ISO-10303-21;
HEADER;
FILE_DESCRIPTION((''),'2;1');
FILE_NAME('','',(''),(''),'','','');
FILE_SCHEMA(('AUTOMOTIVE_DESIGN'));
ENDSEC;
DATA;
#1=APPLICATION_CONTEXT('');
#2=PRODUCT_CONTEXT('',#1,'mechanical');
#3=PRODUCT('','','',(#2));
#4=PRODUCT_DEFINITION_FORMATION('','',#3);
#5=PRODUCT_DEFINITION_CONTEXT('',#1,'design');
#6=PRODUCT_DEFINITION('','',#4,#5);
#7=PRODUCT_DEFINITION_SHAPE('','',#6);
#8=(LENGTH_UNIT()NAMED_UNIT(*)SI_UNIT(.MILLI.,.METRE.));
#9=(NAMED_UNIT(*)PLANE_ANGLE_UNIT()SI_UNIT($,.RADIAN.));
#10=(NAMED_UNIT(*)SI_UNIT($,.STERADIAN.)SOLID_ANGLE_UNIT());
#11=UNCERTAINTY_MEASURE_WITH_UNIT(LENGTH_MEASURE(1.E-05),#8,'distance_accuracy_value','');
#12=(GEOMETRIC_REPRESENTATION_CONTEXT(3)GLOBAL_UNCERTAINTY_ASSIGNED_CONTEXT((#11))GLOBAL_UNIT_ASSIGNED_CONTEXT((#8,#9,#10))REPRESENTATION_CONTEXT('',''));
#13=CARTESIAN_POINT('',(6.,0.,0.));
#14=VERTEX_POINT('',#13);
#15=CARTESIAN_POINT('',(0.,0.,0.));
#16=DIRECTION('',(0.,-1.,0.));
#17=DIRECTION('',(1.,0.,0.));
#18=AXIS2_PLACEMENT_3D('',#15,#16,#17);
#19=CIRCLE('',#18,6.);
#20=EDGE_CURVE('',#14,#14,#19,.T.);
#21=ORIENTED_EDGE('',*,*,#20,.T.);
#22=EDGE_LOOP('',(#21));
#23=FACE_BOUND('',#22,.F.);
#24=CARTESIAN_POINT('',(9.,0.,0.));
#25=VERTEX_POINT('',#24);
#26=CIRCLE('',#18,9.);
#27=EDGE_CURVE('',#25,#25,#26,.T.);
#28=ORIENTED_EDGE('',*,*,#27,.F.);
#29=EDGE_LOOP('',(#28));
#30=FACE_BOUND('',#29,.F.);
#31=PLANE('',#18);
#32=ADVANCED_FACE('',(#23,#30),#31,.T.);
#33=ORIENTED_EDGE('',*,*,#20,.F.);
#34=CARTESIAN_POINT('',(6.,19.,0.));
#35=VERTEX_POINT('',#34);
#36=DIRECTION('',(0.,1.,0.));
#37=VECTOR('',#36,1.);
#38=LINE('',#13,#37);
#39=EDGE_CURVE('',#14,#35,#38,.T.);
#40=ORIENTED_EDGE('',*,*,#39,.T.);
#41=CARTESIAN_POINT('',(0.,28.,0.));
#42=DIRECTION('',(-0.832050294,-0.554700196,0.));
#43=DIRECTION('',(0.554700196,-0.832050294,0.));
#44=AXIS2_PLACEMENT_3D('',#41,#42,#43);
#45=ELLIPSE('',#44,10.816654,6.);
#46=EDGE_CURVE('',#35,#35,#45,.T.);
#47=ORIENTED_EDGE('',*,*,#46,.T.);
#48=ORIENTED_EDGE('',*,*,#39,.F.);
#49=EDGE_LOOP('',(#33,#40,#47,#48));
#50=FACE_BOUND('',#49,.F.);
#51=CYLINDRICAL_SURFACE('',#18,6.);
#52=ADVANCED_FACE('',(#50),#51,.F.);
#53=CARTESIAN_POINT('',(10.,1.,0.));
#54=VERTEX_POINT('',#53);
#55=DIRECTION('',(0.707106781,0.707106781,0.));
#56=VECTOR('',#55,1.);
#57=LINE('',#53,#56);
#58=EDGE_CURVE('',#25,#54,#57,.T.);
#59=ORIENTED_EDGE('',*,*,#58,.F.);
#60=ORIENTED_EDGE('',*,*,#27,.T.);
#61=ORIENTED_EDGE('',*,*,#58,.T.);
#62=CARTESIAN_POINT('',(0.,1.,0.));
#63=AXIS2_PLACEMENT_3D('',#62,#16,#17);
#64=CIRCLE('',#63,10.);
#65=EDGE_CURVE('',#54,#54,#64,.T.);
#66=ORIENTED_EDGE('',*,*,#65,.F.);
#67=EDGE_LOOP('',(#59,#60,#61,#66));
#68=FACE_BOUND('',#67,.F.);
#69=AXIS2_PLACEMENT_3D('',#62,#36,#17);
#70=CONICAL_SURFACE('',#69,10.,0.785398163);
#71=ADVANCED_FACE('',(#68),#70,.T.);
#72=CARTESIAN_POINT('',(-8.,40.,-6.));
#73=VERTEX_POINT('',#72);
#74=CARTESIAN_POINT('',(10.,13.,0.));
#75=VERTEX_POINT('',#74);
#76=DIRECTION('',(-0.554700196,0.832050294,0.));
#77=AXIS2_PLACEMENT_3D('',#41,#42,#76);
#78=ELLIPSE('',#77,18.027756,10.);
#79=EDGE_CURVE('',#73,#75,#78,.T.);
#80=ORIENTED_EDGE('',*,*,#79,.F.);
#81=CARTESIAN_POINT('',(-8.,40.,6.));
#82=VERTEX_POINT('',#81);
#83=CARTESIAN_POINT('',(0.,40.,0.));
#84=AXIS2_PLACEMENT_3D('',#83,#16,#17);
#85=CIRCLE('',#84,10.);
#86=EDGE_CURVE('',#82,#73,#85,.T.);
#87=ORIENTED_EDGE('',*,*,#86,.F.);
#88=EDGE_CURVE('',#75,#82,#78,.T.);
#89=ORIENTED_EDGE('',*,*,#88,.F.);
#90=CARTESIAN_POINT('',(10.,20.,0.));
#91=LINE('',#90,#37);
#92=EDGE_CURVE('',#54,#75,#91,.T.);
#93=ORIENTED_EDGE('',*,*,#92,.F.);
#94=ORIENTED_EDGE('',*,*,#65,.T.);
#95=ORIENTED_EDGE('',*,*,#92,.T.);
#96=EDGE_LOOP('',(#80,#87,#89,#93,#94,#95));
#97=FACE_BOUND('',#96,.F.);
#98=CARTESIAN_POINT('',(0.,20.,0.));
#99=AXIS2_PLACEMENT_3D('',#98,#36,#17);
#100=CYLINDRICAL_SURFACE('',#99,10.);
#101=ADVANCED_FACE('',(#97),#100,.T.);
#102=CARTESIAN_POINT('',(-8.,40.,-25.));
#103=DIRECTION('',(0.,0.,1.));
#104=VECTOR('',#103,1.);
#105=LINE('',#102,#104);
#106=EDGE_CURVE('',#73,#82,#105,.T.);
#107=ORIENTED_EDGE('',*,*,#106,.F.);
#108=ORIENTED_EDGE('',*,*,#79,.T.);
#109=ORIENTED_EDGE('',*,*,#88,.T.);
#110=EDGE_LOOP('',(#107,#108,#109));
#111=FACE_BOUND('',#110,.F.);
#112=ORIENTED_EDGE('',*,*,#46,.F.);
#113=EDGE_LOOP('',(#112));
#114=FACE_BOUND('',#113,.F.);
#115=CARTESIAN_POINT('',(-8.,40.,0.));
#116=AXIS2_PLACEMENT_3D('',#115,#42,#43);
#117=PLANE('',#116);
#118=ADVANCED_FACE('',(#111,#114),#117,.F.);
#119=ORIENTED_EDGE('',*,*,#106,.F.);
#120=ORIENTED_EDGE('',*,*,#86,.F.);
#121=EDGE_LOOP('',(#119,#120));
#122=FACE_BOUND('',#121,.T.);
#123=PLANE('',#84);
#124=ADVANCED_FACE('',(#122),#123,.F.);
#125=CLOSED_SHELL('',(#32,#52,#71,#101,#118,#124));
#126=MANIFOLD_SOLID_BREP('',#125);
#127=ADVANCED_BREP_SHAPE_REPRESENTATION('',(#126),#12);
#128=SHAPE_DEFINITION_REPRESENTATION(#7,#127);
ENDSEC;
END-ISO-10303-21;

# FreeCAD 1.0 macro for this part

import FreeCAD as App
import Part
import Sketcher

V = App.Vector
Q = App.Units.Quantity


def edges_at(feature, points):
    """Names of the edges that pass closest to the given points."""
    edges = feature.Shape.Edges
    near = lambda p: min(range(len(edges)), key=lambda i: edges[i].distToShape(Part.Vertex(*p))[0])
    return sorted({f"Edge{near(p) + 1}" for p in points})


def add_polygon(sketch, points):
    """Adds a closed chain of lines whose ends are joined by coincident constraints."""
    first, n = sketch.GeometryCount, len(points)
    for a, b in zip(points, points[1:] + points[:1]):
        sketch.addGeometry(Part.LineSegment(App.Vector(*a, 0), App.Vector(*b, 0)), False)
    for i in range(n):
        sketch.addConstraint(Sketcher.Constraint("Coincident", first + i, 2, first + (i + 1) % n, 1))

doc = App.newDocument("Part")
body = doc.addObject("PartDesign::Body", "Body")

sketch1 = body.newObject("Sketcher::SketchObject", "Sketch")
sketch1.AttachmentSupport = (doc.getObject("XY_Plane"), [""])
sketch1.MapMode = "FlatFace"
add_polygon(sketch1, [(0, 40), (0, 0), (10, 0), (10, 40)])
sketch1.addConstraint(Sketcher.Constraint("Vertical", 0))
sketch1.addConstraint(Sketcher.Constraint("Horizontal", 1))
sketch1.addConstraint(Sketcher.Constraint("Vertical", 2))
sketch1.addConstraint(Sketcher.Constraint("Horizontal", 3))
sketch1.addConstraint(Sketcher.Constraint("Coincident", 0, 2, -1, 1))
sketch1.addConstraint(Sketcher.Constraint("DistanceX", 1, 1, 1, 2, Q("10 mm")))
sketch1.addConstraint(Sketcher.Constraint("DistanceY", 0, 2, 0, 1, Q("40 mm")))
revolution = body.newObject("PartDesign::Revolution", "Revolution")
revolution.Profile = sketch1
revolution.ReferenceAxis = (sketch1, ["V_Axis"])
revolution.Angle = 360

sketch2 = body.newObject("Sketcher::SketchObject", "Sketch001")
sketch2.AttachmentSupport = (doc.getObject("XY_Plane"), [""])
sketch2.MapMode = "FlatFace"
add_polygon(sketch2, [(10, 40), (-8, 40), (10, 13)])
sketch2.addConstraint(Sketcher.Constraint("Horizontal", 0))
sketch2.addConstraint(Sketcher.Constraint("Vertical", 2))
sketch2.addConstraint(Sketcher.Constraint("DistanceX", 0, 2, 0, 1, Q("18 mm")))
sketch2.addConstraint(Sketcher.Constraint("DistanceY", 2, 1, 2, 2, Q("27 mm")))
sketch2.addConstraint(Sketcher.Constraint("DistanceX", 0, 2, -1, 1, Q("8 mm")))
sketch2.addConstraint(Sketcher.Constraint("DistanceY", -1, 1, 0, 2, Q("40 mm")))
pocket1 = body.newObject("PartDesign::Pocket", "Pocket")
pocket1.Profile = sketch2
pocket1.Length = 50
pocket1.Midplane = True
doc.recompute()

chamfer = body.newObject("PartDesign::Chamfer", "Chamfer")
chamfer.Base = (pocket1, edges_at(pocket1, [(-10, 0, 0)]))
chamfer.Size = 1

sketch3 = body.newObject("Sketcher::SketchObject", "Sketch002")
sketch3.AttachmentSupport = (doc.getObject("XZ_Plane"), [""])
sketch3.MapMode = "FlatFace"
sketch3.addGeometry(Part.Circle(V(0, 0, 0), V(0, 0, 1), 6), False)
sketch3.addConstraint(Sketcher.Constraint("Coincident", 0, 3, -1, 1))
sketch3.addConstraint(Sketcher.Constraint("Diameter", 0, Q("12 mm")))
pocket2 = body.newObject("PartDesign::Pocket", "Pocket001")
pocket2.Profile = sketch3
pocket2.Length = 50

doc.recompute()
